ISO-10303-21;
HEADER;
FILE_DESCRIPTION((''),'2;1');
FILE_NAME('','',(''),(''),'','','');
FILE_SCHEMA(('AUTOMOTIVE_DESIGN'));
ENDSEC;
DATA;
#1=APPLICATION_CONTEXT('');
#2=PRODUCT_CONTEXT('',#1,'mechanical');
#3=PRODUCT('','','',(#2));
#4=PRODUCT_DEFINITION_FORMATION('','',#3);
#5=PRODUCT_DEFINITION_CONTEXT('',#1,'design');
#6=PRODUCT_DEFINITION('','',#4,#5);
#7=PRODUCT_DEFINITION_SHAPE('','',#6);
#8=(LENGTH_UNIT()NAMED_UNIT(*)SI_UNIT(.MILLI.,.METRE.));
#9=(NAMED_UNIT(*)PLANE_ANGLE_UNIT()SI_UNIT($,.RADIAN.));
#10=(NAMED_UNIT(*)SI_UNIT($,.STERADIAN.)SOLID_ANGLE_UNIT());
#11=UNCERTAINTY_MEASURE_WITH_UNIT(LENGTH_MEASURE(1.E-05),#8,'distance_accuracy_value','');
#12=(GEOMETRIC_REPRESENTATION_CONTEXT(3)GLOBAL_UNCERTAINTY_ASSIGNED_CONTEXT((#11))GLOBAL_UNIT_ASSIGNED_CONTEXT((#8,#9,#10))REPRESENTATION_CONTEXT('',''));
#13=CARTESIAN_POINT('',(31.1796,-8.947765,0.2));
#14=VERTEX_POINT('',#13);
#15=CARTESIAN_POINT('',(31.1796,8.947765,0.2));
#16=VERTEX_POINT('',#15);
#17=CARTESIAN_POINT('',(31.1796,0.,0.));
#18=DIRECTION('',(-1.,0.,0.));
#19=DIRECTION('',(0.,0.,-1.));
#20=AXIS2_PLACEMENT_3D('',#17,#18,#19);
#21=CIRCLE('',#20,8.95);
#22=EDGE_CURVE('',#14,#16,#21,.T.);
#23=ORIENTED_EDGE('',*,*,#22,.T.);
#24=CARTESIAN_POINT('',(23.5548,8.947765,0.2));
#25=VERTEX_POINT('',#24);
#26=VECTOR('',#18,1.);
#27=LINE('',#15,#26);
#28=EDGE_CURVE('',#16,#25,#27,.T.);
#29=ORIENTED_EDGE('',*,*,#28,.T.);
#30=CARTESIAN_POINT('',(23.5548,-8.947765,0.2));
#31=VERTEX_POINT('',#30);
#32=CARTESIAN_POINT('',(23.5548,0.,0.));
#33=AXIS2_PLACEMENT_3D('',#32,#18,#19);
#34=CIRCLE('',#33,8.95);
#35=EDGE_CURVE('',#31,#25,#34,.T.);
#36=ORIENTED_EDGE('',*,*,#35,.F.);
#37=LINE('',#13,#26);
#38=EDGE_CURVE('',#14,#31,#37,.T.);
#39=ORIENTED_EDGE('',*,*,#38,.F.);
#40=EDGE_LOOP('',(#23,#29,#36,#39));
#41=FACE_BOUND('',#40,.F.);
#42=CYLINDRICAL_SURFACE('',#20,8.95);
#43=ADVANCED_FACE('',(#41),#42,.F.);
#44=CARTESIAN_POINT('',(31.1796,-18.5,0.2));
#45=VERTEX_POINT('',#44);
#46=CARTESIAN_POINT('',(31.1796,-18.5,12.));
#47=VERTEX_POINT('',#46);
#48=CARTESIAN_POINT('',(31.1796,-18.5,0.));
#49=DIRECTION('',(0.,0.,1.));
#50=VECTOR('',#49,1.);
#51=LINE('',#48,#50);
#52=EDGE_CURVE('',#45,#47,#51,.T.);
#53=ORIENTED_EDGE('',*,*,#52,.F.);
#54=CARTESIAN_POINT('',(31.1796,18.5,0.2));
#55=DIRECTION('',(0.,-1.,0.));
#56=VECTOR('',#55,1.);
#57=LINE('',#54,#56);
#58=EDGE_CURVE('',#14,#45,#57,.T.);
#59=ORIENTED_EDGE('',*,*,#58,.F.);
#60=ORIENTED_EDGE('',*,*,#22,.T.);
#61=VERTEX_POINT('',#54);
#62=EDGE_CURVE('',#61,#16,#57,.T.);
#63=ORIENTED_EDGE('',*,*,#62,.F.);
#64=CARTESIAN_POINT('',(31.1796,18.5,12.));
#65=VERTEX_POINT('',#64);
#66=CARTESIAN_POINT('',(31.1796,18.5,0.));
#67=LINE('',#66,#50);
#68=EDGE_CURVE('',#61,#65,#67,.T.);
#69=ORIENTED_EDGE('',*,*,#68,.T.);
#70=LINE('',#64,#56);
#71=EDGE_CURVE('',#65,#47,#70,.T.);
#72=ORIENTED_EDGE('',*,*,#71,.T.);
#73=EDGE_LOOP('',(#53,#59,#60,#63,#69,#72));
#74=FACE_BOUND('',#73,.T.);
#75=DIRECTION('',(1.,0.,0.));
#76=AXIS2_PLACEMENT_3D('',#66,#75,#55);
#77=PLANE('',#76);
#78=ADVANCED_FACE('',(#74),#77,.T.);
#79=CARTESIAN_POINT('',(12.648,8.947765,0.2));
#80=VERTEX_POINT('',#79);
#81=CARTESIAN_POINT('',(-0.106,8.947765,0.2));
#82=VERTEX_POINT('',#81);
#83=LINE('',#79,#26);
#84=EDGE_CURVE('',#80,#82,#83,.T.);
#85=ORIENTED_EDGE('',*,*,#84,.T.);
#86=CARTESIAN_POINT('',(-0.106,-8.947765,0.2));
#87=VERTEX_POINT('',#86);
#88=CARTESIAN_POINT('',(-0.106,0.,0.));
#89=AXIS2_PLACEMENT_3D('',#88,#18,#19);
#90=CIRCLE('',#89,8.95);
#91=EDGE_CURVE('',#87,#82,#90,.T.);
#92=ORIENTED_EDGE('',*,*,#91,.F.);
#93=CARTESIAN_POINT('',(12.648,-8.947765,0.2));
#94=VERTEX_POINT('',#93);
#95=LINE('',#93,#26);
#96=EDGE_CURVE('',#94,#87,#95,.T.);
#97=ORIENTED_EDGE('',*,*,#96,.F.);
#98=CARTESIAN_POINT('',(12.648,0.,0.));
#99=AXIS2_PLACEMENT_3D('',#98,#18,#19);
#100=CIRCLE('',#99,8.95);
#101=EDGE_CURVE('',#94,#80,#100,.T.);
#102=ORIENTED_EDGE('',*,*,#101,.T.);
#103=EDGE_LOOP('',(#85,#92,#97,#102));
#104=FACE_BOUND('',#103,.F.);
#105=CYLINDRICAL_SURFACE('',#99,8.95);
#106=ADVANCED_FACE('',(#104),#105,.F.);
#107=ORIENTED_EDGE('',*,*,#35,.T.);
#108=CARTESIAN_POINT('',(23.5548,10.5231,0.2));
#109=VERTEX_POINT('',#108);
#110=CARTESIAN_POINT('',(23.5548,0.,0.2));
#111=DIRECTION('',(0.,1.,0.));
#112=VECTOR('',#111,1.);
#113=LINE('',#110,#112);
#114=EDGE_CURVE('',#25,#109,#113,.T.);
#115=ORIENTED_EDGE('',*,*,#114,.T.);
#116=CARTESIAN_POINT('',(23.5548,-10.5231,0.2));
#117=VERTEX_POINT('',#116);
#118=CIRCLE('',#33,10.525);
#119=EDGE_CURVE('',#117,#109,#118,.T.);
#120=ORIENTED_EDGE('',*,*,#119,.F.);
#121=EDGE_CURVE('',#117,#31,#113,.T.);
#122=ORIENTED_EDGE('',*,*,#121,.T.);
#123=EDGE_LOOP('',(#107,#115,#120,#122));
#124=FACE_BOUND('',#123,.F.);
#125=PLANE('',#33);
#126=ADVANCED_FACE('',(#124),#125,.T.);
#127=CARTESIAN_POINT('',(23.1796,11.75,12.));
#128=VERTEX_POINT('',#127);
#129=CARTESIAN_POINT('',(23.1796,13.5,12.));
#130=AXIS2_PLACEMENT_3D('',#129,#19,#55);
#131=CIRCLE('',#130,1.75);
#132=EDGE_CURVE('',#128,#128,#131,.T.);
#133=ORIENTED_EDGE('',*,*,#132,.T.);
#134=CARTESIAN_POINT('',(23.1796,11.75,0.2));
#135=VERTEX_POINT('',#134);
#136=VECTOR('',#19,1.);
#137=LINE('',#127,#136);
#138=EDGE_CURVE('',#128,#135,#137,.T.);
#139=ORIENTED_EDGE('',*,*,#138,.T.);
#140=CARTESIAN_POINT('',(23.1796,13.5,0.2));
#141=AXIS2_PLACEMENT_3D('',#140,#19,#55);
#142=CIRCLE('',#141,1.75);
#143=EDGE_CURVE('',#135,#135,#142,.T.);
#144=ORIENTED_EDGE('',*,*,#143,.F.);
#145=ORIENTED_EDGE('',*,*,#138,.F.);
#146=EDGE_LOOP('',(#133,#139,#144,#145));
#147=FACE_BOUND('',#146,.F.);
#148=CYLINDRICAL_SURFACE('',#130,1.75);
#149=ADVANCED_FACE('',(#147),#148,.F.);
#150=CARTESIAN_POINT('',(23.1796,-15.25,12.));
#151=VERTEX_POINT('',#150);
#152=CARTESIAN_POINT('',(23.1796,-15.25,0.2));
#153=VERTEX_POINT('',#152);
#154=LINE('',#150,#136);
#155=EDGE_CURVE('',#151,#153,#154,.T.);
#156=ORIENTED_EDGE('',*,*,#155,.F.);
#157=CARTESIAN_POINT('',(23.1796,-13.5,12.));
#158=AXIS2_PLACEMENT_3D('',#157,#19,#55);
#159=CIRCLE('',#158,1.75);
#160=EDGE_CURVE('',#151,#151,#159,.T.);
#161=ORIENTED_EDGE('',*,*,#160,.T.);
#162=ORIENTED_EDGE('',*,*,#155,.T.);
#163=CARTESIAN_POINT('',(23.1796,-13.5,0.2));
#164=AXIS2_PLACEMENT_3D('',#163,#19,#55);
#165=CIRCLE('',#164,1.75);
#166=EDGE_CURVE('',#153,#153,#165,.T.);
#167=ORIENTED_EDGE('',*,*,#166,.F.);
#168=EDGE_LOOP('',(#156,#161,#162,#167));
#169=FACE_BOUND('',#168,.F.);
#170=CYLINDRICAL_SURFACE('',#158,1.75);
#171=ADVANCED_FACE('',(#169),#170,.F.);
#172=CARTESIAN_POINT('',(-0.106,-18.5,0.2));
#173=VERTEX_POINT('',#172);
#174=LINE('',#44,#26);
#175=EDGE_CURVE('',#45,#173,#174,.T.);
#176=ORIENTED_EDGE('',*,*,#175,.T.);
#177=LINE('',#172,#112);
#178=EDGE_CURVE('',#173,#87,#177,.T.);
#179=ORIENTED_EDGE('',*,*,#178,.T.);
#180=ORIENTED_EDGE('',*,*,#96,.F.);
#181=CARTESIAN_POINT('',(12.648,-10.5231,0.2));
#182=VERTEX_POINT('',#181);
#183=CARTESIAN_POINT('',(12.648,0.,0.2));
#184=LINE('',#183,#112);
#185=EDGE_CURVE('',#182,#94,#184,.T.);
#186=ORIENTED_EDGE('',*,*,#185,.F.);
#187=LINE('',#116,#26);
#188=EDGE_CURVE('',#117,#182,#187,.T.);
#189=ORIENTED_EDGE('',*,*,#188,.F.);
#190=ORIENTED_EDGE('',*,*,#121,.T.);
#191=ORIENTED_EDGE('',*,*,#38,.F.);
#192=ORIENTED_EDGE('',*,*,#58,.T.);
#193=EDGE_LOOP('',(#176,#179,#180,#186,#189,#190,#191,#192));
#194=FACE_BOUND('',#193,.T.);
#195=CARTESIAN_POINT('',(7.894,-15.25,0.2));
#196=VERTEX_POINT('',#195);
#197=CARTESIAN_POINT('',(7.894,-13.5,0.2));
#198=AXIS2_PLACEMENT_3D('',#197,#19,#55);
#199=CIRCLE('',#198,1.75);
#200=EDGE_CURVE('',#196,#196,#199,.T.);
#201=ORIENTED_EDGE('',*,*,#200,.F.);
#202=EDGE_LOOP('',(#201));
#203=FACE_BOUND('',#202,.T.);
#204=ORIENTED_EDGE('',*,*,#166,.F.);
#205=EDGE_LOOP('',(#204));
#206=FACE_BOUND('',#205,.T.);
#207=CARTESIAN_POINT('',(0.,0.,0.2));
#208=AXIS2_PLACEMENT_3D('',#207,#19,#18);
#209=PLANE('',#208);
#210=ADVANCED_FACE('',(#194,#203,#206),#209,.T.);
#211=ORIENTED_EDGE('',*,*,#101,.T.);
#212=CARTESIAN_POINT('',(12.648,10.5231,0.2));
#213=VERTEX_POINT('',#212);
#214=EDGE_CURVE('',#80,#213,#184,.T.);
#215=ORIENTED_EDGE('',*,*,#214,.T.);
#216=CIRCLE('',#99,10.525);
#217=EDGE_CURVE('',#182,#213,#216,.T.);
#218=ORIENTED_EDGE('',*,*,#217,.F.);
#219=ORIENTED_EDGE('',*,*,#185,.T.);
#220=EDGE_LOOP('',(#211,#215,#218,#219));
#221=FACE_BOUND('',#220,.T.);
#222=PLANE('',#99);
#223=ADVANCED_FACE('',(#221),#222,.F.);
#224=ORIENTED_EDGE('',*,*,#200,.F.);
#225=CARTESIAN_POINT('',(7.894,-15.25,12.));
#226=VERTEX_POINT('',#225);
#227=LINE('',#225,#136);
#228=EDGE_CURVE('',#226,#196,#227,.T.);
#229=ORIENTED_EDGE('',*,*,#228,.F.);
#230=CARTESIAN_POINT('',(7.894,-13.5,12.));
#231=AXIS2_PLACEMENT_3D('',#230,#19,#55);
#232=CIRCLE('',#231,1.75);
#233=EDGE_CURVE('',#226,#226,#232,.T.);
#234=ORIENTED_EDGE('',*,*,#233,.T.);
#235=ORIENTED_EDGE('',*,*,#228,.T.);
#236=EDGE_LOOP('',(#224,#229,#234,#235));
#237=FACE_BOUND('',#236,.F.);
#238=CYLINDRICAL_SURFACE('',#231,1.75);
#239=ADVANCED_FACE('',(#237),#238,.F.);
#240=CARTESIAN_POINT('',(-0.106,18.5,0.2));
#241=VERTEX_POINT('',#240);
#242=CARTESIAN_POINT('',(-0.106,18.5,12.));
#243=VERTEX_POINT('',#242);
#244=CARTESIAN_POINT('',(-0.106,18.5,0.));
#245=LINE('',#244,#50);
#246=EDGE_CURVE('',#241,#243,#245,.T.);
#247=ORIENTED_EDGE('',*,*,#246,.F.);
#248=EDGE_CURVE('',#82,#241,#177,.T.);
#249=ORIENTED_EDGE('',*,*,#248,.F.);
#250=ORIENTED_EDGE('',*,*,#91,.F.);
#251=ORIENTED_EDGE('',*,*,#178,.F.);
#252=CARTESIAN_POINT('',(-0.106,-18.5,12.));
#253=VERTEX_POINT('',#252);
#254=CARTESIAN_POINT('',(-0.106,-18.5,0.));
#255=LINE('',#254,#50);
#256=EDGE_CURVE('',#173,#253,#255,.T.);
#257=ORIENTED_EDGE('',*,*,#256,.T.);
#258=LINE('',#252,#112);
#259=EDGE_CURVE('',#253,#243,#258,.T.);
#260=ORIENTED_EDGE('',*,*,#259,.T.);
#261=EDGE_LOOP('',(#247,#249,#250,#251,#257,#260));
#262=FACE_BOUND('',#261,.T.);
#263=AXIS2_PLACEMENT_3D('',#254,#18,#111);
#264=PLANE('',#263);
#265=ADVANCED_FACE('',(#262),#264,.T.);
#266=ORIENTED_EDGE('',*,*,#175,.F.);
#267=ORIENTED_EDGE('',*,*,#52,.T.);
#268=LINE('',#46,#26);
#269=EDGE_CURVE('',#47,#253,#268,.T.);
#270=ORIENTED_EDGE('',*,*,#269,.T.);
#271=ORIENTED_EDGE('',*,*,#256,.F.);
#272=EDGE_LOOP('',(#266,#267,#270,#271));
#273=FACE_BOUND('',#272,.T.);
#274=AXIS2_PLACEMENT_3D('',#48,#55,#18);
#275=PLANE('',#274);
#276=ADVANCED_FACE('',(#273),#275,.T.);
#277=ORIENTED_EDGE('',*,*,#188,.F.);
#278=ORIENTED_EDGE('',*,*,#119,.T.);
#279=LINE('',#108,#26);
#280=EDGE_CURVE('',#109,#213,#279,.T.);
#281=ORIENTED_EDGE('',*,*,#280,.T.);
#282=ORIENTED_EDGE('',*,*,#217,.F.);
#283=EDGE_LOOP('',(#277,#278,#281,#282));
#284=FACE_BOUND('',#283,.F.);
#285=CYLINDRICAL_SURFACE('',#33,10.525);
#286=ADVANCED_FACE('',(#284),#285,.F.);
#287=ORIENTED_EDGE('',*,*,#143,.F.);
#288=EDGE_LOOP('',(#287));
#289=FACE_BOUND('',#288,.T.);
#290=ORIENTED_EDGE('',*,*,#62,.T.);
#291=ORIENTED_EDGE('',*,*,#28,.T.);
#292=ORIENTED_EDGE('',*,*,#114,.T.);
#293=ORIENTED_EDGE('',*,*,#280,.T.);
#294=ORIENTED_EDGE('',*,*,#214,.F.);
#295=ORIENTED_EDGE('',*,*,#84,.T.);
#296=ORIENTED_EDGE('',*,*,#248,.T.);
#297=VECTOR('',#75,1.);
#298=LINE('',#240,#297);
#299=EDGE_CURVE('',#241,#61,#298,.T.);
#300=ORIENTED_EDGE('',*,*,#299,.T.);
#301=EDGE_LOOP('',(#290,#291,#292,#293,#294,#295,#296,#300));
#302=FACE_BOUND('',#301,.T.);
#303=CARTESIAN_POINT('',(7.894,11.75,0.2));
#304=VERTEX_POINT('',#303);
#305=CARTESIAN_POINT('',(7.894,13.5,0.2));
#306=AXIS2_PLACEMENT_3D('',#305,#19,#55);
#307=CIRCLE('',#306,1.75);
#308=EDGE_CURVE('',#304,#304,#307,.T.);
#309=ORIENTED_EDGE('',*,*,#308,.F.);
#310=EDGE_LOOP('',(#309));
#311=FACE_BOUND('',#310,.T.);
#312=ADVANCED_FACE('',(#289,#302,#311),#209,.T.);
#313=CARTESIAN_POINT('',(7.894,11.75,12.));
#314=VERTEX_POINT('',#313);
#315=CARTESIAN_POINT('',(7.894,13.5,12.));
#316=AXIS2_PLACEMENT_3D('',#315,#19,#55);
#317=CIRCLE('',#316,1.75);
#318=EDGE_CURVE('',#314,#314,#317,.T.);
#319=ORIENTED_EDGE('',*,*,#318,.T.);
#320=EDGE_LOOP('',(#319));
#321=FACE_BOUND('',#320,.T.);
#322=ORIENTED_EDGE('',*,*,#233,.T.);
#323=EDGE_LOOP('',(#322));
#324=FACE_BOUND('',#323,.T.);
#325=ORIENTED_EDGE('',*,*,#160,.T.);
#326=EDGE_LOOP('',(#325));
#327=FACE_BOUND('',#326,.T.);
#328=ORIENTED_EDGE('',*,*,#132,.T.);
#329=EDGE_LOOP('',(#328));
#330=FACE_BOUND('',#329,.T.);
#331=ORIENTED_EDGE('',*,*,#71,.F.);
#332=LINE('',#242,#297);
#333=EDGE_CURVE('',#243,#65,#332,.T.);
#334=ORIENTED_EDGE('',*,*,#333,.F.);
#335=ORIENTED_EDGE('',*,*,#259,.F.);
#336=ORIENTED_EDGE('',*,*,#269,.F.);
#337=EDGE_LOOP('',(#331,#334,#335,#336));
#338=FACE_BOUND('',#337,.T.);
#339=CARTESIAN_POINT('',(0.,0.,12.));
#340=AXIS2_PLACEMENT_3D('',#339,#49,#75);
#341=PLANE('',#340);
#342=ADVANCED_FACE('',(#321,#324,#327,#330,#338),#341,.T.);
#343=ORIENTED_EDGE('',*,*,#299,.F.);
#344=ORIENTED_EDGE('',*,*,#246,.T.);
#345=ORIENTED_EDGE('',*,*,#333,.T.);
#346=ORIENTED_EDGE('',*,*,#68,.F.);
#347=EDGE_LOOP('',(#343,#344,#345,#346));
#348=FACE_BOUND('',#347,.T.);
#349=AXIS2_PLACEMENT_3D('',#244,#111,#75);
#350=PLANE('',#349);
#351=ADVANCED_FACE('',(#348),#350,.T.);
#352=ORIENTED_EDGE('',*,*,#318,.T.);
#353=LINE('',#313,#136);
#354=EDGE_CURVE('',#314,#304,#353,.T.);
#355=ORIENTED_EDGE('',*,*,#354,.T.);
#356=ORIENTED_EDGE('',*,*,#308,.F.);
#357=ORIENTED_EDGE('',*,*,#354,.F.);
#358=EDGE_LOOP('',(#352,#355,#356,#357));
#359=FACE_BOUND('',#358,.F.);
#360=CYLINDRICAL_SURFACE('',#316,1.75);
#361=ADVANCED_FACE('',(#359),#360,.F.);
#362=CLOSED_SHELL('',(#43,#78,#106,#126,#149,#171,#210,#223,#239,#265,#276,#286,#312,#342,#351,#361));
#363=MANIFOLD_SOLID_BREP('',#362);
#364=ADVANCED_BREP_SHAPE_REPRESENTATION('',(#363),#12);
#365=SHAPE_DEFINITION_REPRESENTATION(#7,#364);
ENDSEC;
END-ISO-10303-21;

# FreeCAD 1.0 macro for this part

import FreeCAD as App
import Part
import Sketcher

doc = App.newDocument("Part")
params = doc.addObject("Spreadsheet::Sheet", "Params")
for row, (alias, value) in enumerate([
    ("sketch1_height", "37 mm"),
    ("pad1_length", "12 mm"),
    ("sketch2_height", "8.95 mm"),
    ("groove_angle", "360 deg"),
    ("sketch3_height", "37 mm"),
    ("pocket1_length", "0.2 mm"),
    ("sketch4_diameter", "3.5 mm"),
    ("hole_diameter", "3.5 mm"),
], start=1):
    params.set(f"A{row}", alias)
    params.set(f"B{row}", "=" + value)
    params.setAlias(f"B{row}", alias)

body = doc.addObject("PartDesign::Body", "Body")

sketch1 = body.newObject("Sketcher::SketchObject", "Sketch")
sketch1.AttachmentSupport = (doc.getObject("XY_Plane"), [""])
sketch1.MapMode = "FlatFace"
sketch1.addGeometry([
    Part.LineSegment(App.Vector(-0.106, -18.5, 0), App.Vector(31.1796, -18.5, 0)),
    Part.LineSegment(App.Vector(31.1796, -18.5, 0), App.Vector(31.1796, 18.5, 0)),
    Part.LineSegment(App.Vector(31.1796, 18.5, 0), App.Vector(-0.106, 18.5, 0)),
    Part.LineSegment(App.Vector(-0.106, 18.5, 0), App.Vector(-0.106, -18.5, 0)),
], False)
sketch1.addConstraint([
    Sketcher.Constraint("Coincident", 0, 2, 1, 1),
    Sketcher.Constraint("Coincident", 1, 2, 2, 1),
    Sketcher.Constraint("Coincident", 2, 2, 3, 1),
    Sketcher.Constraint("Coincident", 3, 2, 0, 1),
    Sketcher.Constraint("Horizontal", 0),
    Sketcher.Constraint("Vertical", 1),
    Sketcher.Constraint("Horizontal", 2),
    Sketcher.Constraint("Vertical", 3),
    Sketcher.Constraint("DistanceY", 1, 1, 1, 2, 37.0),
    Sketcher.Constraint("DistanceY", 0, 2, -1, 1, 18.5),
    Sketcher.Constraint("DistanceX", 0, 1, 0, 2, 31.2856),
    Sketcher.Constraint("DistanceX", 2, 2, -1, 1, 0.106),
])
sketch1.setExpression("Constraints[8]", "Params.sketch1_height")
pad1 = body.newObject("PartDesign::Pad", "Pad")
pad1.Profile = sketch1
pad1.setExpression("Length", "Params.pad1_length")

sketch2 = body.newObject("Sketcher::SketchObject", "Sketch001")
sketch2.AttachmentSupport = (doc.getObject("XZ_Plane"), [""])
sketch2.MapMode = "FlatFace"
sketch2.addGeometry([
    Part.LineSegment(App.Vector(12.648, -8.95, 0), App.Vector(-1.106, -8.95, 0)),
    Part.LineSegment(App.Vector(-1.106, -8.95, 0), App.Vector(-1.106, 0, 0)),
    Part.LineSegment(App.Vector(-1.106, 0, 0), App.Vector(32.1796, 0, 0)),
    Part.LineSegment(App.Vector(32.1796, 0, 0), App.Vector(32.1796, -8.95, 0)),
    Part.LineSegment(App.Vector(32.1796, -8.95, 0), App.Vector(23.5548, -8.95, 0)),
    Part.LineSegment(App.Vector(23.5548, -8.95, 0), App.Vector(23.5548, -10.525, 0)),
    Part.LineSegment(App.Vector(23.5548, -10.525, 0), App.Vector(12.648, -10.525, 0)),
    Part.LineSegment(App.Vector(12.648, -10.525, 0), App.Vector(12.648, -8.95, 0)),
], False)
sketch2.addConstraint([
    Sketcher.Constraint("Coincident", 0, 2, 1, 1),
    Sketcher.Constraint("Coincident", 1, 2, 2, 1),
    Sketcher.Constraint("Coincident", 2, 2, 3, 1),
    Sketcher.Constraint("Coincident", 3, 2, 4, 1),
    Sketcher.Constraint("Coincident", 4, 2, 5, 1),
    Sketcher.Constraint("Coincident", 5, 2, 6, 1),
    Sketcher.Constraint("Coincident", 6, 2, 7, 1),
    Sketcher.Constraint("Coincident", 7, 2, 0, 1),
    Sketcher.Constraint("Horizontal", 0),
    Sketcher.Constraint("Vertical", 1),
    Sketcher.Constraint("Horizontal", 2),
    Sketcher.Constraint("Vertical", 3),
    Sketcher.Constraint("Horizontal", 4),
    Sketcher.Constraint("Vertical", 5),
    Sketcher.Constraint("Horizontal", 6),
    Sketcher.Constraint("Vertical", 7),
    Sketcher.Constraint("PointOnObject", 1, 2, -1),
    Sketcher.Constraint("Horizontal", 0, 2, 3, 2),
    Sketcher.Constraint("DistanceY", 1, 1, 1, 2, 8.95),
    Sketcher.Constraint("DistanceX", 0, 2, 0, 1, 13.754),
    Sketcher.Constraint("DistanceY", 5, 2, 5, 1, 1.575),
    Sketcher.Constraint("DistanceX", 2, 1, 2, 2, 33.2856),
    Sketcher.Constraint("DistanceX", 4, 2, 4, 1, 8.6248),
    Sketcher.Constraint("DistanceX", 0, 2, -1, 1, 1.106),
])
sketch2.setExpression("Constraints[18]", "Params.sketch2_height")
groove = body.newObject("PartDesign::Groove", "Groove")
groove.Profile = sketch2
groove.ReferenceAxis = (sketch2, ["H_Axis"])
groove.setExpression("Angle", "Params.groove_angle")

sketch3 = body.newObject("Sketcher::SketchObject", "Sketch002")
sketch3.AttachmentSupport = (doc.getObject("XY_Plane"), [""])
sketch3.MapMode = "FlatFace"
sketch3.addGeometry([
    Part.LineSegment(App.Vector(-0.106, -18.5, 0), App.Vector(-0.106, 18.5, 0)),
    Part.LineSegment(App.Vector(-0.106, 18.5, 0), App.Vector(31.1796, 18.5, 0)),
    Part.LineSegment(App.Vector(31.1796, 18.5, 0), App.Vector(31.1796, -18.5, 0)),
    Part.LineSegment(App.Vector(31.1796, -18.5, 0), App.Vector(-0.106, -18.5, 0)),
], False)
sketch3.addConstraint([
    Sketcher.Constraint("Coincident", 0, 2, 1, 1),
    Sketcher.Constraint("Coincident", 1, 2, 2, 1),
    Sketcher.Constraint("Coincident", 2, 2, 3, 1),
    Sketcher.Constraint("Coincident", 3, 2, 0, 1),
    Sketcher.Constraint("Vertical", 0),
    Sketcher.Constraint("Horizontal", 1),
    Sketcher.Constraint("Vertical", 2),
    Sketcher.Constraint("Horizontal", 3),
    Sketcher.Constraint("DistanceY", 0, 1, 0, 2, 37.0),
    Sketcher.Constraint("DistanceY", -1, 1, 0, 2, 18.5),
    Sketcher.Constraint("DistanceX", 1, 1, 1, 2, 31.2856),
    Sketcher.Constraint("DistanceX", 0, 2, -1, 1, 0.106),
])
sketch3.setExpression("Constraints[8]", "Params.sketch3_height")
pocket1 = body.newObject("PartDesign::Pocket", "Pocket")
pocket1.Profile = sketch3
pocket1.setExpression("Length", "Params.pocket1_length")
pocket1.Reversed = True

sketch4 = body.newObject("Sketcher::SketchObject", "Sketch003")
sketch4.AttachmentSupport = (doc.getObject("XY_Plane"), [""])
sketch4.MapMode = "FlatFace"
sketch4.AttachmentOffset = App.Placement(App.Vector(0, 0, 12), App.Rotation())
sketch4.addGeometry([
    Part.Circle(App.Vector(23.1796, 13.5, 0), App.Vector(0, 0, 1), 1.75),
    Part.Circle(App.Vector(7.894, 13.5, 0), App.Vector(0, 0, 1), 1.75),
    Part.Circle(App.Vector(23.1796, -13.5, 0), App.Vector(0, 0, 1), 1.75),
    Part.Circle(App.Vector(7.894, -13.5, 0), App.Vector(0, 0, 1), 1.75),
], False)
sketch4.addConstraint([
    Sketcher.Constraint("Equal", 0, 1),
    Sketcher.Constraint("Equal", 1, 2),
    Sketcher.Constraint("Equal", 2, 3),
    Sketcher.Constraint("Symmetric", 0, 3, 2, 3, -1),
    Sketcher.Constraint("Symmetric", 1, 3, 3, 3, -1),
    Sketcher.Constraint("Horizontal", 0, 3, 1, 3),
    Sketcher.Constraint("Diameter", 0, 3.5),
    Sketcher.Constraint("DistanceY", 2, 3, 0, 3, 27.0),
    Sketcher.Constraint("DistanceX", -1, 1, 1, 3, 7.894),
    Sketcher.Constraint("DistanceX", -1, 1, 0, 3, 23.1796),
])
sketch4.setExpression("Constraints[6]", "Params.sketch4_diameter")
doc.recompute()
hole = body.newObject("PartDesign::Hole", "Hole")
hole.Profile = sketch4
hole.ThreadType = "None"
hole.setExpression("Diameter", "Params.hole_diameter")
hole.DepthType = "ThroughAll"

doc.recompute()
